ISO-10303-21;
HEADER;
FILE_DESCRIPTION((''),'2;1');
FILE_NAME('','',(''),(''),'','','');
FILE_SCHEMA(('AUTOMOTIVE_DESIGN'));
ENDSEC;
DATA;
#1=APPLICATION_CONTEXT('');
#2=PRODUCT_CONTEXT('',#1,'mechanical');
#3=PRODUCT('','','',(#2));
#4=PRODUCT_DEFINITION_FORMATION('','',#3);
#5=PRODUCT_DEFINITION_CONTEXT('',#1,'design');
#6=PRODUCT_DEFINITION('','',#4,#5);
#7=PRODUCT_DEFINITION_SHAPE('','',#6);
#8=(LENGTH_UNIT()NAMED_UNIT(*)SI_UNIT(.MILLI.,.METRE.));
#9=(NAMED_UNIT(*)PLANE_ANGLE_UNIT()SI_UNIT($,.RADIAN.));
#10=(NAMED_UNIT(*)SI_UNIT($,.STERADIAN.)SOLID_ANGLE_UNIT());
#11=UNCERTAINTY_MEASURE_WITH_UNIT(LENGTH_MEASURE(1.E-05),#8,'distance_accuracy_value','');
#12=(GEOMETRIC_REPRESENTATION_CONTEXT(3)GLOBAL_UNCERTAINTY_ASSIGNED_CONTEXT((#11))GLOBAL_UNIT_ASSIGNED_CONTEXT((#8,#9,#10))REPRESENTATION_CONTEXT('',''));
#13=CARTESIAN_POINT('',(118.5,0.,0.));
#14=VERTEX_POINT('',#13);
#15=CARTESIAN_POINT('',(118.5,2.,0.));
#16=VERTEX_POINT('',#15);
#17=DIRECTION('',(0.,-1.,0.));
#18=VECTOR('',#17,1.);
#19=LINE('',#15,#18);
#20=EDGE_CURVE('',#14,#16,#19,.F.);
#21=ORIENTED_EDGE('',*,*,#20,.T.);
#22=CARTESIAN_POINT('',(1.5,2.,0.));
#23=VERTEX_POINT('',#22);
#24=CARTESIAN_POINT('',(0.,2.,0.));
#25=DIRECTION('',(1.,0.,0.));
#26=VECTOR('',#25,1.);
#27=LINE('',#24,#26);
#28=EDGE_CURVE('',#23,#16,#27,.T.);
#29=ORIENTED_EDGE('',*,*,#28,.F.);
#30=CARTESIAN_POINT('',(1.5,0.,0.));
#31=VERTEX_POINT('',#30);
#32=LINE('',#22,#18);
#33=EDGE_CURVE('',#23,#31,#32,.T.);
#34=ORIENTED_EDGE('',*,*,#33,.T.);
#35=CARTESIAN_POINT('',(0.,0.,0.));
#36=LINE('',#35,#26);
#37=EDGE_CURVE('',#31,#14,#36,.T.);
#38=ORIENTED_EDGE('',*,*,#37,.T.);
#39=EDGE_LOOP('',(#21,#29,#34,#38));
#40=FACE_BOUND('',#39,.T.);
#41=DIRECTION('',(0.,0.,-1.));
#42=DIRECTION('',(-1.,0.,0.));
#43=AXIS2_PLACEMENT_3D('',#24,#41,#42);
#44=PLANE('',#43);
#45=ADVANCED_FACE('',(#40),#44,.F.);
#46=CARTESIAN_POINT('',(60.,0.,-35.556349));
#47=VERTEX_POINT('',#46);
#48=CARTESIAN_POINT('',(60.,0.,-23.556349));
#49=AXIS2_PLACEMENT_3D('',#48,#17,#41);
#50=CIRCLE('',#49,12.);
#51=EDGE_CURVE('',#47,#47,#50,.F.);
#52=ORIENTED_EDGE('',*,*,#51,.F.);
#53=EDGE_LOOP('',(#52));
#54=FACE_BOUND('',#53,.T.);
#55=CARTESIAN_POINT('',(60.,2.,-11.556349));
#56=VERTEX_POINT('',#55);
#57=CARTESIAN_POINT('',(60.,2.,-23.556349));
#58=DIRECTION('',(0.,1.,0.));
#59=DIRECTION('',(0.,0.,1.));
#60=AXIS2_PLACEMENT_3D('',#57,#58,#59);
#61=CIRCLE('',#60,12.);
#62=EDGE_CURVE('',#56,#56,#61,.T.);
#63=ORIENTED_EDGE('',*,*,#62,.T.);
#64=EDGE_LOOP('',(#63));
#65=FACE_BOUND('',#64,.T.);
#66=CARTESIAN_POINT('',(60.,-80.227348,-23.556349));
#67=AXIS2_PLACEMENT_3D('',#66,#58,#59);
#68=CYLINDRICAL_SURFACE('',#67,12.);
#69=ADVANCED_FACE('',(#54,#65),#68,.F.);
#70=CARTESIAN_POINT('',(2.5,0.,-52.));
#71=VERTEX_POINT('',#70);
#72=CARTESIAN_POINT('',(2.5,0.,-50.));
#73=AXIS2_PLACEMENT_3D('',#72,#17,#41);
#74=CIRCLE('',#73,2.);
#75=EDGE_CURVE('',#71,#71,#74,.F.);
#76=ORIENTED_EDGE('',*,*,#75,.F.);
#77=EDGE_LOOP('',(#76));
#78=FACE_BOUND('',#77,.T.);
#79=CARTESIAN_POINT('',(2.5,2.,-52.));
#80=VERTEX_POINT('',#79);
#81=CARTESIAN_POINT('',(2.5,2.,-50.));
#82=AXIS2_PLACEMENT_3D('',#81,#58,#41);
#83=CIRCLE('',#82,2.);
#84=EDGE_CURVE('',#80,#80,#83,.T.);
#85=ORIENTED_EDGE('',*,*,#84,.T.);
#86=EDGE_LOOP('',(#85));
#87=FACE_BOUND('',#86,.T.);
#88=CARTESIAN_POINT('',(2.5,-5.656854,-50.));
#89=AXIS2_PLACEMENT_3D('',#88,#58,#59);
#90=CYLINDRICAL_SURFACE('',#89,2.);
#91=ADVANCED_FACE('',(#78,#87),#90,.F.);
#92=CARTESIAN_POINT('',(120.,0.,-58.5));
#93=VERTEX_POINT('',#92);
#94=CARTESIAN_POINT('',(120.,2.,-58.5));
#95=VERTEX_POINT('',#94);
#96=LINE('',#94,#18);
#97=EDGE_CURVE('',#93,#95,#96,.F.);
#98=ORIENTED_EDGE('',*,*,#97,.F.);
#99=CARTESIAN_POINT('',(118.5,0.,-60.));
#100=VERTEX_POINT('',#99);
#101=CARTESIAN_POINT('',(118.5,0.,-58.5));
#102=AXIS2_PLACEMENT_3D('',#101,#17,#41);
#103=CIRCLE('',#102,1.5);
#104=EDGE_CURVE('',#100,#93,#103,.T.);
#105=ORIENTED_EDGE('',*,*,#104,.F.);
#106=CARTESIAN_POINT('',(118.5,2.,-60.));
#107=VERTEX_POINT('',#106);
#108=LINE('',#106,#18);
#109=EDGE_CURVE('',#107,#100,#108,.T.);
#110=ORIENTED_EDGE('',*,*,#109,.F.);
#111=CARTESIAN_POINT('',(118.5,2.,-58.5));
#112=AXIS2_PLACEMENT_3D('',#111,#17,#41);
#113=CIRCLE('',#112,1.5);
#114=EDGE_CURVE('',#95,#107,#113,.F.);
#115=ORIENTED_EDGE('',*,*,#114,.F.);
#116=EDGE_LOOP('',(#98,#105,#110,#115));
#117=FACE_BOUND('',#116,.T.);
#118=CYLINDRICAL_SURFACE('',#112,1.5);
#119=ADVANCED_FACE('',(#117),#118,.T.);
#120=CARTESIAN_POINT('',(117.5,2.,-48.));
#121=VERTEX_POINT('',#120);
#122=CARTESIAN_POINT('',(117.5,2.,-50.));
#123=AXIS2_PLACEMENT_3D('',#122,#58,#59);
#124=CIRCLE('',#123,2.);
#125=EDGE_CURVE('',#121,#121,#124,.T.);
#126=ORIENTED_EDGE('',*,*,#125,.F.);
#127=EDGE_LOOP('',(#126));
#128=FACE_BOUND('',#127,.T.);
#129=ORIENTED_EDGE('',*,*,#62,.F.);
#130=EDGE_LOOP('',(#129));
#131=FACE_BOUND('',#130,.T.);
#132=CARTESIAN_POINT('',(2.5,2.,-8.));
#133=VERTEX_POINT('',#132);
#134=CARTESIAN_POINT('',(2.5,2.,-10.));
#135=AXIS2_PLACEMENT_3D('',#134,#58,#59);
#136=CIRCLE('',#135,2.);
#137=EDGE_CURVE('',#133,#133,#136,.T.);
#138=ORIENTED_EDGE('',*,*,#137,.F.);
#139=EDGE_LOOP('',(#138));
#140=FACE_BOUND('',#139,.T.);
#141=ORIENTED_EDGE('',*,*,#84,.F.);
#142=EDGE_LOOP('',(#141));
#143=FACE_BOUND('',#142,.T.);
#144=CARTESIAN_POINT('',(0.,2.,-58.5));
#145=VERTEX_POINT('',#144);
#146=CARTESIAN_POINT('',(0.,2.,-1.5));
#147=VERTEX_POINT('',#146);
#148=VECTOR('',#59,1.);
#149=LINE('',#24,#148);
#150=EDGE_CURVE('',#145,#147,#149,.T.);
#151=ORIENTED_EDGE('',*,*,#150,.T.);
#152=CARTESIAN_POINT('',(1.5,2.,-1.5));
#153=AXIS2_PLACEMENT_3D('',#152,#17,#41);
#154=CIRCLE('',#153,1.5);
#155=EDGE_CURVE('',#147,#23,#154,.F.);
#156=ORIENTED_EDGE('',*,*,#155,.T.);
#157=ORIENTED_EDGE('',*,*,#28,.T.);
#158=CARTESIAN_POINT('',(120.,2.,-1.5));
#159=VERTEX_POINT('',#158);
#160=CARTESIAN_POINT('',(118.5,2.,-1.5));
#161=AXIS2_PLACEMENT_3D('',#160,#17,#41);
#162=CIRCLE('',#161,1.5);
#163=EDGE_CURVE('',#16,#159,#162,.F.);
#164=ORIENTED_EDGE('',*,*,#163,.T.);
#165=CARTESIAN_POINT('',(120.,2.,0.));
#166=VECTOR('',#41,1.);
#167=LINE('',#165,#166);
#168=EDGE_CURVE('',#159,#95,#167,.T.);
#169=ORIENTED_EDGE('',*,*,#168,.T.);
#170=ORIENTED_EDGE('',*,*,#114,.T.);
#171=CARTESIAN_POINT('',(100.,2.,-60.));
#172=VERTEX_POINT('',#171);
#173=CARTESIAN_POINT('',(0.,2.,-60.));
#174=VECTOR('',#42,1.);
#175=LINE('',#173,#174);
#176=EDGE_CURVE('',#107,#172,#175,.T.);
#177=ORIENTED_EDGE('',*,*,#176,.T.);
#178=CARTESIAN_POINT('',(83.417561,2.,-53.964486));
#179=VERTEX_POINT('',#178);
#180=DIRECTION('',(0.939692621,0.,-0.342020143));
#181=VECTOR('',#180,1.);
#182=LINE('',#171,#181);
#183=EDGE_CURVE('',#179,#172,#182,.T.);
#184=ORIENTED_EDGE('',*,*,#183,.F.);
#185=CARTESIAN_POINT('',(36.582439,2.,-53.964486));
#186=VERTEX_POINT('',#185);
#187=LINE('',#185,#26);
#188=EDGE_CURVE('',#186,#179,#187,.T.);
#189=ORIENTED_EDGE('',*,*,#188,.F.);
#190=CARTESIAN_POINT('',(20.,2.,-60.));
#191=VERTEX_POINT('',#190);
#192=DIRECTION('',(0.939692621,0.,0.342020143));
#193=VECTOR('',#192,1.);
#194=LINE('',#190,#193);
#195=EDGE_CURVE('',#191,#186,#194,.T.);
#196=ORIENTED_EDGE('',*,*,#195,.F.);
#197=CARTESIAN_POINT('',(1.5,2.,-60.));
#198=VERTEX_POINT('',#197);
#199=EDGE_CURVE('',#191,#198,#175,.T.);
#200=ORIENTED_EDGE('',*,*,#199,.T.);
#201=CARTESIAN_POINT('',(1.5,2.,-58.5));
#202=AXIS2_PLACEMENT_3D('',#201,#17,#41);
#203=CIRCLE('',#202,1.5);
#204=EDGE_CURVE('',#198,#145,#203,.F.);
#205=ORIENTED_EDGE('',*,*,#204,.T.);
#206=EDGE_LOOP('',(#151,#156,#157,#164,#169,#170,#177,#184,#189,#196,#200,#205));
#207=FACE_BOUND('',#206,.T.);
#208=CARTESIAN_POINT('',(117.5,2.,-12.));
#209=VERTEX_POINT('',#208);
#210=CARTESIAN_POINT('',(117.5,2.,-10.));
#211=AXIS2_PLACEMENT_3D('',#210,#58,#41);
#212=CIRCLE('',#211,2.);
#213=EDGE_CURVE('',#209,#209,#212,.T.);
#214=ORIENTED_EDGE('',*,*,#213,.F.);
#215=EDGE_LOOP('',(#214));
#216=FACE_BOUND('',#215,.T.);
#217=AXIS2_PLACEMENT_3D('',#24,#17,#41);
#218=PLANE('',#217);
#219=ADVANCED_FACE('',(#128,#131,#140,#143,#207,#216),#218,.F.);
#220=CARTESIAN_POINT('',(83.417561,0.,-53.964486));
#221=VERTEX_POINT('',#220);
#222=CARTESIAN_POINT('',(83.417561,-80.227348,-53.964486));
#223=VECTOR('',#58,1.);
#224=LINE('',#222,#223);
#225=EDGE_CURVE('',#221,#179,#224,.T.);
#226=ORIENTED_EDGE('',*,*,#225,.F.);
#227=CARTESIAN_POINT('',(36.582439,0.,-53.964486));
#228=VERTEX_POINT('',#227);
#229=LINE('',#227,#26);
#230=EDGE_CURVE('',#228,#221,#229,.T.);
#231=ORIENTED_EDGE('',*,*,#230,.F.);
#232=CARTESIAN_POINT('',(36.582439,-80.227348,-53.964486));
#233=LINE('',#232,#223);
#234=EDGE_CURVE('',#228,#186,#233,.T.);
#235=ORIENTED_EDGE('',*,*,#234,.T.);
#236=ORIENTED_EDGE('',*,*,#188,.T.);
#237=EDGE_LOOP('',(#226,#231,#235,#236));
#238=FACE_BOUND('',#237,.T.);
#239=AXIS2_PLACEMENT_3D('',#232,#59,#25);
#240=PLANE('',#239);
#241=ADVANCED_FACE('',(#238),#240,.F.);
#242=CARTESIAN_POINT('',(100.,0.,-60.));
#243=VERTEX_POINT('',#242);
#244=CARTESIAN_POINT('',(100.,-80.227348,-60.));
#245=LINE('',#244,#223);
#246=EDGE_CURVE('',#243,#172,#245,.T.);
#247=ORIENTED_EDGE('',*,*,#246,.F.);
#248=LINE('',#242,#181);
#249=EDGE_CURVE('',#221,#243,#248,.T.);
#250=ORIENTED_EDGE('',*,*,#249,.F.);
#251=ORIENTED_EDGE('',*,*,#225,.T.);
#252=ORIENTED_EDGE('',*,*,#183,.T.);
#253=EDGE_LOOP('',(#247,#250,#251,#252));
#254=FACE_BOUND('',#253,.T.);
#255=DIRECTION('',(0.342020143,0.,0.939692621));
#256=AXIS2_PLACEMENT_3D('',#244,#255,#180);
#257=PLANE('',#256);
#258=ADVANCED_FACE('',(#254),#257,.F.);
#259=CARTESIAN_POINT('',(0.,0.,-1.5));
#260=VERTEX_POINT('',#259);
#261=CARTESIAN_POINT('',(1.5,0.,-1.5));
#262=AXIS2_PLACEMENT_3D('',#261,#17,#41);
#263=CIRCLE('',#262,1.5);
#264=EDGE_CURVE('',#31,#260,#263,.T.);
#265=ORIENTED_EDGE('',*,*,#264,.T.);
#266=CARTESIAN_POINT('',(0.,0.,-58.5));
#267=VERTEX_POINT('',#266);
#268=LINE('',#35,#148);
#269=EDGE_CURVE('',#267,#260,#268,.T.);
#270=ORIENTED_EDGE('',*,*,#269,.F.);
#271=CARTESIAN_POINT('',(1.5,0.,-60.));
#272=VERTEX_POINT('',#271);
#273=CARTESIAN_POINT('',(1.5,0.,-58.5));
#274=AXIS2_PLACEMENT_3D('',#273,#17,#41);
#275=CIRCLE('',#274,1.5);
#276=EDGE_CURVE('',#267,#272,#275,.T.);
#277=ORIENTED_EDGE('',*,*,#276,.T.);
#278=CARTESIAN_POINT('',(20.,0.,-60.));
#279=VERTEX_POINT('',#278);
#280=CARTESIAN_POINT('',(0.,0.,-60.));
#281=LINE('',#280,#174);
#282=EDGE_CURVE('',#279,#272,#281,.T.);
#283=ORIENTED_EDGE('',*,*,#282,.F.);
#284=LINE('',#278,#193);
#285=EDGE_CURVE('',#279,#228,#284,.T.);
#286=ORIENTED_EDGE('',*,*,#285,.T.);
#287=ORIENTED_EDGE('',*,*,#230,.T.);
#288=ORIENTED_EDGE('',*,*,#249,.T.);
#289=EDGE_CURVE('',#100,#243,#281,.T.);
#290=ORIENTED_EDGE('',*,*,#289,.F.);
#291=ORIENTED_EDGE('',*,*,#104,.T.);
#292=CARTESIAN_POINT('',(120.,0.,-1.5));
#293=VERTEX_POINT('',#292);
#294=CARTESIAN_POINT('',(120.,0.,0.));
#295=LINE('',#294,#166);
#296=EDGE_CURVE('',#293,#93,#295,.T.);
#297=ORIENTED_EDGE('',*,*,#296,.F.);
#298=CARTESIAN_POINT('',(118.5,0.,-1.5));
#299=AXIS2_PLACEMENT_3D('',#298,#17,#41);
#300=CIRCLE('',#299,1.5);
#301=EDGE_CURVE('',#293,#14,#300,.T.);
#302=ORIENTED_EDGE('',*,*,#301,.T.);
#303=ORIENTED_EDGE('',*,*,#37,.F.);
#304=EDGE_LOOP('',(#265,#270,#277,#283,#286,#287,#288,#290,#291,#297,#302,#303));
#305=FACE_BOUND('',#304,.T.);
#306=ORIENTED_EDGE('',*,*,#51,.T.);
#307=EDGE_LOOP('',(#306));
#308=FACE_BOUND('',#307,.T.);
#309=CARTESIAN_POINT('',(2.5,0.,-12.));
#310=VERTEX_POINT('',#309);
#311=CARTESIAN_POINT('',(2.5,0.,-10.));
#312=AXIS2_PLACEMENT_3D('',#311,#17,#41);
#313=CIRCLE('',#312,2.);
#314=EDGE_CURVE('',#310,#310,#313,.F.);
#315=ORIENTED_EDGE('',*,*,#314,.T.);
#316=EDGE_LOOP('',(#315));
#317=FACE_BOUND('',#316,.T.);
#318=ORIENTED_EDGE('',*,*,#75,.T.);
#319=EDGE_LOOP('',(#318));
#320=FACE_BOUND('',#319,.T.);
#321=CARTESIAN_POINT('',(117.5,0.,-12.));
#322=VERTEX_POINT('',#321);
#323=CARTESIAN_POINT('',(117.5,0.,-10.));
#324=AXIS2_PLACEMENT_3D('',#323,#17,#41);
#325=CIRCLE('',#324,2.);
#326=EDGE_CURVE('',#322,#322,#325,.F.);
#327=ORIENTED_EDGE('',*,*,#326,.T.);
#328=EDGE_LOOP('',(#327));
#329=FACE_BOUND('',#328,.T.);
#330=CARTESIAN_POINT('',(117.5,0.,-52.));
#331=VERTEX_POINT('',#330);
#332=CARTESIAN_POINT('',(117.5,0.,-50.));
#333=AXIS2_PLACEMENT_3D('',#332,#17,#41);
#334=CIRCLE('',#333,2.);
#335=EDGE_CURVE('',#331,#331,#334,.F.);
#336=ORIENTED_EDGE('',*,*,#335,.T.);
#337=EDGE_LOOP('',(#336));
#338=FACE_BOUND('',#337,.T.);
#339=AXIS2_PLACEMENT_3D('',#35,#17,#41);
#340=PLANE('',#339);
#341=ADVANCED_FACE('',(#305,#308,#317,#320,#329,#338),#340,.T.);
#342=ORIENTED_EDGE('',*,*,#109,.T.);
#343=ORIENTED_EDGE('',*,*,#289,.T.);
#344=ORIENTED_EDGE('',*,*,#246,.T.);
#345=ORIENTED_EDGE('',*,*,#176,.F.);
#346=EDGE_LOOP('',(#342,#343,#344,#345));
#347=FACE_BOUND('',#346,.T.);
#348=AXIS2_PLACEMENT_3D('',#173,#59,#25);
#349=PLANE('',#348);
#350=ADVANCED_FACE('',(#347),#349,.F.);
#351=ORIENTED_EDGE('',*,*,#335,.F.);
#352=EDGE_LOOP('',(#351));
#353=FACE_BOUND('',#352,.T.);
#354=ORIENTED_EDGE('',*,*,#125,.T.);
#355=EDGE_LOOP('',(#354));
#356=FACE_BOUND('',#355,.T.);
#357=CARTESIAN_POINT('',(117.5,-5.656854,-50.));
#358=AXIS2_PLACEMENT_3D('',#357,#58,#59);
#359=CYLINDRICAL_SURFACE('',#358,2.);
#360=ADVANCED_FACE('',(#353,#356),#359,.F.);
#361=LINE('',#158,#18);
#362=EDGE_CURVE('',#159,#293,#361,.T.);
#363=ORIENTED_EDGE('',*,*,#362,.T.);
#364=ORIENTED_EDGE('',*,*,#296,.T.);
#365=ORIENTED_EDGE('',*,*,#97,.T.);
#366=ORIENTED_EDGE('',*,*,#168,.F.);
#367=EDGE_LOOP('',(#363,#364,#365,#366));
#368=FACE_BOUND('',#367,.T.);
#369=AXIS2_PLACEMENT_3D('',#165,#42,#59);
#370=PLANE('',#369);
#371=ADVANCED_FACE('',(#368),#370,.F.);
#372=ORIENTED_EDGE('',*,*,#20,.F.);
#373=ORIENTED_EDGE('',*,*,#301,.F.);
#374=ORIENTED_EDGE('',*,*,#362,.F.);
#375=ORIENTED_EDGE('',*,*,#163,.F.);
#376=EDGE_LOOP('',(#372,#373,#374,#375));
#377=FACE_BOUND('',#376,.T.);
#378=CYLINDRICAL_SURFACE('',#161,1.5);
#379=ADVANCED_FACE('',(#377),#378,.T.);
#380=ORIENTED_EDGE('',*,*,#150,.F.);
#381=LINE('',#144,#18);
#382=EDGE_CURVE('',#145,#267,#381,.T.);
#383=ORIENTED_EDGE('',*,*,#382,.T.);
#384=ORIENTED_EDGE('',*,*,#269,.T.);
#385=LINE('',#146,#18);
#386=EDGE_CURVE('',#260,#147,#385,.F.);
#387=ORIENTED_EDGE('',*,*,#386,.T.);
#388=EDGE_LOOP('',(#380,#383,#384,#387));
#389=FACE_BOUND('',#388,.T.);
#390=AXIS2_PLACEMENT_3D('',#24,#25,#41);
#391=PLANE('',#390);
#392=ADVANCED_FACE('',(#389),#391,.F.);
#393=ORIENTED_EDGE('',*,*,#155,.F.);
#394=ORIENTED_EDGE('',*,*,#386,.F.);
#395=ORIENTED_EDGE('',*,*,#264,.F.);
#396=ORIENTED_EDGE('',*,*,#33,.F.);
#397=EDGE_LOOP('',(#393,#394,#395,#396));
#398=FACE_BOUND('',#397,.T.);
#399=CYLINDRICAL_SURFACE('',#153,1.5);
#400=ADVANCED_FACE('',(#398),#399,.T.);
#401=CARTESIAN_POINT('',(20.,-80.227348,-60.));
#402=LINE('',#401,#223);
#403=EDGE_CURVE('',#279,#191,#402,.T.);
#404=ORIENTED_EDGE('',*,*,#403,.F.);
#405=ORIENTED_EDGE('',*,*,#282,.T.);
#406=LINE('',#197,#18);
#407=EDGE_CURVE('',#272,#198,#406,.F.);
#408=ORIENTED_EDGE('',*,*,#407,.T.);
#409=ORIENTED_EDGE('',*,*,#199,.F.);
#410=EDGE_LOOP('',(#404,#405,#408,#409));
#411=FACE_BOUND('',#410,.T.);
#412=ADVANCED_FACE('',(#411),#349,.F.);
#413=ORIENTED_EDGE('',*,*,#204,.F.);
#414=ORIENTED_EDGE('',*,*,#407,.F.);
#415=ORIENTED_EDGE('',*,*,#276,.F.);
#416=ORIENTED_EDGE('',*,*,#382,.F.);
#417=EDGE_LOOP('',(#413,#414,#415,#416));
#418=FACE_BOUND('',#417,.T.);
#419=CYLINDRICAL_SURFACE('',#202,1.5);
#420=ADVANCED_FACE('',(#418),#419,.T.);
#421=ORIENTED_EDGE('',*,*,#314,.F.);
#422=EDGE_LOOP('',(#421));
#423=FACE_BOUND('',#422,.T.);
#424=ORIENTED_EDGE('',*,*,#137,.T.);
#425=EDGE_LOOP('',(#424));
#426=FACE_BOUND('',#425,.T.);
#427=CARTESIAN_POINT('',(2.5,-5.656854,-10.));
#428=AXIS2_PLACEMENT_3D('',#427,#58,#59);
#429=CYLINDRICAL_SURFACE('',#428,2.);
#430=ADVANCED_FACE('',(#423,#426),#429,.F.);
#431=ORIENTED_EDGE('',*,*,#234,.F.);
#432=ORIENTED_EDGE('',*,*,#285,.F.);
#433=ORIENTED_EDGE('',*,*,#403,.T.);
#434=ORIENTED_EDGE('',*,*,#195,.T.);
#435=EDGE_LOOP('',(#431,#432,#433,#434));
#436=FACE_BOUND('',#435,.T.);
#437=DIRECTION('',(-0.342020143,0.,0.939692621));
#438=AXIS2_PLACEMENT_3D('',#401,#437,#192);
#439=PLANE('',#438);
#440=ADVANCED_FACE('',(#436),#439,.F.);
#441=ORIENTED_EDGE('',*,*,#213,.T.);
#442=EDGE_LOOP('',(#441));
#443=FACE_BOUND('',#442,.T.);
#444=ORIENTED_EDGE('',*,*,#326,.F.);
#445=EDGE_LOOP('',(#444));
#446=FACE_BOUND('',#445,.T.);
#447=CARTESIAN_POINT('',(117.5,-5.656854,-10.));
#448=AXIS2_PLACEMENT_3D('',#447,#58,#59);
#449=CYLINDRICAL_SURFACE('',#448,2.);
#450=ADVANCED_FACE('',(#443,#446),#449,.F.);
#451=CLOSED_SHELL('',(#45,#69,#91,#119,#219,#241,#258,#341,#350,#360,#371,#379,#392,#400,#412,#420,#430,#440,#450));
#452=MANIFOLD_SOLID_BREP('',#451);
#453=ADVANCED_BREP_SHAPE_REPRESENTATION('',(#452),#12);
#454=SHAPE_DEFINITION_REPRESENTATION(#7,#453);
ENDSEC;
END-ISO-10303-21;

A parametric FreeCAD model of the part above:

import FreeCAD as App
import Part
import Sketcher

V = App.Vector
Q = App.Units.Quantity


def edges_at(feature, points):
    """Names of the edges that pass closest to the given points."""
    edges = feature.Shape.Edges
    near = lambda p: min(range(len(edges)), key=lambda i: edges[i].distToShape(Part.Vertex(*p))[0])
    return sorted({f"Edge{near(p) + 1}" for p in points})

doc = App.newDocument("Part")
body = doc.addObject("PartDesign::Body", "Body")

# Sketch on XZ plane
sketch1 = doc.addObject("Sketcher::SketchObject", "Sketch")
body.addObject(sketch1)
sketch1.AttachmentSupport = (doc.XZ_Plane, [""])
sketch1.MapMode = "FlatFace"
sketch1.addGeometry(Part.LineSegment(V(0, -60, 0), V(0, 0, 0)), False)
sketch1.addGeometry(Part.LineSegment(V(0, 0, 0), V(120, 0, 0)), False)
sketch1.addGeometry(Part.LineSegment(V(120, 0, 0), V(120, -60, 0)), False)
sketch1.addGeometry(Part.LineSegment(V(120, -60, 0), V(0, -60, 0)), False)
sketch1.addConstraint(Sketcher.Constraint("Coincident", 0, 2, 1, 1))
sketch1.addConstraint(Sketcher.Constraint("Coincident", 1, 2, 2, 1))
sketch1.addConstraint(Sketcher.Constraint("Coincident", 2, 2, 3, 1))
sketch1.addConstraint(Sketcher.Constraint("Coincident", 3, 2, 0, 1))
sketch1.addConstraint(Sketcher.Constraint("Vertical", 0))
sketch1.addConstraint(Sketcher.Constraint("Horizontal", 1))
sketch1.addConstraint(Sketcher.Constraint("Vertical", 2))
sketch1.addConstraint(Sketcher.Constraint("Horizontal", 3))
sketch1.addConstraint(Sketcher.Constraint("Coincident", 0, 2, -1, 1))
sketch1.addConstraint(Sketcher.Constraint("DistanceX", 1, 1, 1, 2, Q("120 mm")))
sketch1.addConstraint(Sketcher.Constraint("DistanceY", 0, 1, 0, 2, Q("60 mm")))
pad1 = doc.addObject("PartDesign::Pad", "Pad")
body.addObject(pad1)
pad1.Profile = sketch1
pad1.Length = 2
pad1.Reversed = True

# Sketch on XZ plane
sketch2 = doc.addObject("Sketcher::SketchObject", "Sketch001")
body.addObject(sketch2)
sketch2.AttachmentSupport = (doc.XZ_Plane, [""])
sketch2.MapMode = "FlatFace"
sketch2.AttachmentOffset = App.Placement(V(0, 0, -2), App.Rotation())
sketch2.addGeometry(Part.Circle(V(117.5, -50, 0), V(0, 0, 1), 2), False)
sketch2.addGeometry(Part.Circle(V(117.5, -10, 0), V(0, 0, 1), 2), False)
sketch2.addGeometry(Part.Circle(V(2.5, -50, 0), V(0, 0, 1), 2), False)
sketch2.addGeometry(Part.Circle(V(2.5, -10, 0), V(0, 0, 1), 2), False)
sketch2.addConstraint(Sketcher.Constraint("Equal", 0, 1))
sketch2.addConstraint(Sketcher.Constraint("Equal", 1, 2))
sketch2.addConstraint(Sketcher.Constraint("Equal", 2, 3))
sketch2.addConstraint(Sketcher.Constraint("Horizontal", 0, 3, 2, 3))
sketch2.addConstraint(Sketcher.Constraint("Horizontal", 1, 3, 3, 3))
sketch2.addConstraint(Sketcher.Constraint("Vertical", 0, 3, 1, 3))
sketch2.addConstraint(Sketcher.Constraint("Vertical", 2, 3, 3, 3))
sketch2.addConstraint(Sketcher.Constraint("Diameter", 0, Q("4 mm")))
sketch2.addConstraint(Sketcher.Constraint("DistanceY", 0, 3, -1, 1, Q("50 mm")))
sketch2.addConstraint(Sketcher.Constraint("DistanceY", 1, 3, -1, 1, Q("10 mm")))
sketch2.addConstraint(Sketcher.Constraint("DistanceX", 2, 3, 0, 3, Q("115 mm")))
sketch2.addConstraint(Sketcher.Constraint("DistanceX", -1, 1, 0, 3, Q("117.5 mm")))
pocket1 = doc.addObject("PartDesign::Pocket", "Pocket")
body.addObject(pocket1)
pocket1.Profile = sketch2
pocket1.Length = 2
pocket1.Reversed = True

# Sketch on XZ plane
sketch3 = doc.addObject("Sketcher::SketchObject", "Sketch002")
body.addObject(sketch3)
sketch3.AttachmentSupport = (doc.XZ_Plane, [""])
sketch3.MapMode = "FlatFace"
sketch3.AttachmentOffset = App.Placement(V(0, 0, -2), App.Rotation())
sketch3.addGeometry(Part.Circle(V(60, -23.556349, 0), V(0, 0, 1), 12), False)
sketch3.addGeometry(Part.LineSegment(V(20, -60, 0), V(36.582439, -53.964486, 0)), False)
sketch3.addGeometry(Part.LineSegment(V(36.582439, -53.964486, 0), V(83.417561, -53.964486, 0)), False)
sketch3.addGeometry(Part.LineSegment(V(83.417561, -53.964486, 0), V(100, -60, 0)), False)
sketch3.addGeometry(Part.LineSegment(V(100, -60, 0), V(20, -60, 0)), False)
sketch3.addConstraint(Sketcher.Constraint("Coincident", 1, 2, 2, 1))
sketch3.addConstraint(Sketcher.Constraint("Coincident", 2, 2, 3, 1))
sketch3.addConstraint(Sketcher.Constraint("Coincident", 3, 2, 4, 1))
sketch3.addConstraint(Sketcher.Constraint("Coincident", 4, 2, 1, 1))
sketch3.addConstraint(Sketcher.Constraint("Horizontal", 2))
sketch3.addConstraint(Sketcher.Constraint("Horizontal", 4))
sketch3.addConstraint(Sketcher.Constraint("Equal", 1, 3))
sketch3.addConstraint(Sketcher.Constraint("Diameter", 0, Q("24 mm")))
sketch3.addConstraint(Sketcher.Constraint("DistanceX", 4, 2, 4, 1, Q("80 mm")))
sketch3.addConstraint(Sketcher.Constraint("Angle", 1, Q("20 deg")))
sketch3.addConstraint(Sketcher.Constraint("DistanceX", -1, 1, 0, 3, Q("60 mm")))
sketch3.addConstraint(Sketcher.Constraint("DistanceX", -1, 1, 3, 2, Q("100 mm")))
sketch3.addConstraint(Sketcher.Constraint("DistanceY", 3, 2, -1, 1, Q("60 mm")))
sketch3.addConstraint(Sketcher.Constraint("DistanceX", 2, 1, 2, 2, Q("46.835122 mm")))
sketch3.addConstraint(Sketcher.Constraint("DistanceY", 0, 3, -1, 1, Q("23.556349 mm")))
pocket2 = doc.addObject("PartDesign::Pocket", "Pocket001")
body.addObject(pocket2)
pocket2.Profile = sketch3
pocket2.Length = 2
pocket2.Reversed = True
doc.recompute()

fillet = doc.addObject("PartDesign::Fillet", "Fillet")
body.addObject(fillet)
fillet.Base = (pocket2, edges_at(pocket2, [
    (0, 1, -60),
    (120, 1, -60),
    (120, 1, 0),
    (0, 1, 0),
]))
fillet.Radius = 1.5

doc.recompute()
